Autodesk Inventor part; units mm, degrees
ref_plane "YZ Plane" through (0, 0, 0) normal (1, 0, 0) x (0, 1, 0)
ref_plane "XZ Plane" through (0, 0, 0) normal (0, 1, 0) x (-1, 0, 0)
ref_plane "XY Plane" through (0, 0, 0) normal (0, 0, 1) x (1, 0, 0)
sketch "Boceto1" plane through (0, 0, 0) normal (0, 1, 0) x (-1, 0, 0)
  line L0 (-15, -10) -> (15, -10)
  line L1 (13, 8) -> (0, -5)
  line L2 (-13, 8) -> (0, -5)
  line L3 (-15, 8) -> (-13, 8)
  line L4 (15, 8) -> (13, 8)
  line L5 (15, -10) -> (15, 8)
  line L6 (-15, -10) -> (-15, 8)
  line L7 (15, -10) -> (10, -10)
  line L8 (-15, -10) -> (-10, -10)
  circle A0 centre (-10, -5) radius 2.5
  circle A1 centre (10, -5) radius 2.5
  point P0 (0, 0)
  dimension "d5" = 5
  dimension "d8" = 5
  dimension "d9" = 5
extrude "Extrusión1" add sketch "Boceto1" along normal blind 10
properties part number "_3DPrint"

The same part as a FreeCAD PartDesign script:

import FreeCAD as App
import Part
import Sketcher

doc = App.newDocument("Part")
body = doc.addObject("PartDesign::Body", "Body")

sketch1 = body.newObject("Sketcher::SketchObject", "Sketch")
sketch1.AttachmentSupport = (doc.getObject("XZ_Plane"), [""])
sketch1.MapMode = "FlatFace"
sketch1.addGeometry(Part.LineSegment(App.Vector(15, 8, 0), App.Vector(15, -10, 0)), False)
sketch1.addGeometry(Part.LineSegment(App.Vector(15, -10, 0), App.Vector(-15, -10, 0)), False)
sketch1.addGeometry(Part.LineSegment(App.Vector(-15, -10, 0), App.Vector(-15, 8, 0)), False)
sketch1.addGeometry(Part.LineSegment(App.Vector(-15, 8, 0), App.Vector(-13, 8, 0)), False)
sketch1.addGeometry(Part.LineSegment(App.Vector(-13, 8, 0), App.Vector(0, -5, 0)), False)
sketch1.addGeometry(Part.LineSegment(App.Vector(0, -5, 0), App.Vector(13, 8, 0)), False)
sketch1.addGeometry(Part.LineSegment(App.Vector(13, 8, 0), App.Vector(15, 8, 0)), False)
sketch1.addGeometry(Part.Circle(App.Vector(10, -5, 0), App.Vector(0, 0, 1), 2.5), False)
sketch1.addGeometry(Part.Circle(App.Vector(-10, -5, 0), App.Vector(0, 0, 1), 2.5), False)
sketch1.addConstraint(Sketcher.Constraint("Coincident", 0, 2, 1, 1))
sketch1.addConstraint(Sketcher.Constraint("Coincident", 1, 2, 2, 1))
sketch1.addConstraint(Sketcher.Constraint("Coincident", 2, 2, 3, 1))
sketch1.addConstraint(Sketcher.Constraint("Coincident", 3, 2, 4, 1))
sketch1.addConstraint(Sketcher.Constraint("Coincident", 4, 2, 5, 1))
sketch1.addConstraint(Sketcher.Constraint("Coincident", 5, 2, 6, 1))
sketch1.addConstraint(Sketcher.Constraint("Coincident", 6, 2, 0, 1))
sketch1.addConstraint(Sketcher.Constraint("Vertical", 0))
sketch1.addConstraint(Sketcher.Constraint("Horizontal", 1))
sketch1.addConstraint(Sketcher.Constraint("Vertical", 2))
sketch1.addConstraint(Sketcher.Constraint("Horizontal", 3))
sketch1.addConstraint(Sketcher.Constraint("Horizontal", 6))
sketch1.addConstraint(Sketcher.Constraint("Equal", 7, 8))
sketch1.addConstraint(Sketcher.Constraint("Symmetric", 7, 3, 8, 3, -2))
sketch1.addConstraint(Sketcher.Constraint("Symmetric", 3, 2, 5, 2, -2))
sketch1.addConstraint(Sketcher.Constraint("PointOnObject", 4, 2, -2))
sketch1.addConstraint(Sketcher.Constraint("Perpendicular", 4, 5))
sketch1.addConstraint(Sketcher.Constraint("Horizontal", 8, 3, 4, 2))
sketch1.addConstraint(Sketcher.Constraint("Equal", 3, 6))
sketch1.addConstraint(Sketcher.Constraint("Diameter", 7, 5.0))
sketch1.addConstraint(Sketcher.Constraint("DistanceY", 7, 3, -1, 1, 5.0))
sketch1.addConstraint(Sketcher.Constraint("DistanceX", 7, 3, 0, 2, 5.0))
sketch1.addConstraint(Sketcher.Constraint("DistanceY", 0, 2, 7, 3, 5.0))
sketch1.addConstraint(Sketcher.Constraint("DistanceX", 1, 2, 1, 1, 30.0))
sketch1.addConstraint(Sketcher.Constraint("DistanceX", 3, 1, 3, 2, 2.0))
pad1 = body.newObject("PartDesign::Pad", "Pad")
pad1.Profile = sketch1
pad1.Length = 10
pad1.Reversed = True

doc.recompute()
